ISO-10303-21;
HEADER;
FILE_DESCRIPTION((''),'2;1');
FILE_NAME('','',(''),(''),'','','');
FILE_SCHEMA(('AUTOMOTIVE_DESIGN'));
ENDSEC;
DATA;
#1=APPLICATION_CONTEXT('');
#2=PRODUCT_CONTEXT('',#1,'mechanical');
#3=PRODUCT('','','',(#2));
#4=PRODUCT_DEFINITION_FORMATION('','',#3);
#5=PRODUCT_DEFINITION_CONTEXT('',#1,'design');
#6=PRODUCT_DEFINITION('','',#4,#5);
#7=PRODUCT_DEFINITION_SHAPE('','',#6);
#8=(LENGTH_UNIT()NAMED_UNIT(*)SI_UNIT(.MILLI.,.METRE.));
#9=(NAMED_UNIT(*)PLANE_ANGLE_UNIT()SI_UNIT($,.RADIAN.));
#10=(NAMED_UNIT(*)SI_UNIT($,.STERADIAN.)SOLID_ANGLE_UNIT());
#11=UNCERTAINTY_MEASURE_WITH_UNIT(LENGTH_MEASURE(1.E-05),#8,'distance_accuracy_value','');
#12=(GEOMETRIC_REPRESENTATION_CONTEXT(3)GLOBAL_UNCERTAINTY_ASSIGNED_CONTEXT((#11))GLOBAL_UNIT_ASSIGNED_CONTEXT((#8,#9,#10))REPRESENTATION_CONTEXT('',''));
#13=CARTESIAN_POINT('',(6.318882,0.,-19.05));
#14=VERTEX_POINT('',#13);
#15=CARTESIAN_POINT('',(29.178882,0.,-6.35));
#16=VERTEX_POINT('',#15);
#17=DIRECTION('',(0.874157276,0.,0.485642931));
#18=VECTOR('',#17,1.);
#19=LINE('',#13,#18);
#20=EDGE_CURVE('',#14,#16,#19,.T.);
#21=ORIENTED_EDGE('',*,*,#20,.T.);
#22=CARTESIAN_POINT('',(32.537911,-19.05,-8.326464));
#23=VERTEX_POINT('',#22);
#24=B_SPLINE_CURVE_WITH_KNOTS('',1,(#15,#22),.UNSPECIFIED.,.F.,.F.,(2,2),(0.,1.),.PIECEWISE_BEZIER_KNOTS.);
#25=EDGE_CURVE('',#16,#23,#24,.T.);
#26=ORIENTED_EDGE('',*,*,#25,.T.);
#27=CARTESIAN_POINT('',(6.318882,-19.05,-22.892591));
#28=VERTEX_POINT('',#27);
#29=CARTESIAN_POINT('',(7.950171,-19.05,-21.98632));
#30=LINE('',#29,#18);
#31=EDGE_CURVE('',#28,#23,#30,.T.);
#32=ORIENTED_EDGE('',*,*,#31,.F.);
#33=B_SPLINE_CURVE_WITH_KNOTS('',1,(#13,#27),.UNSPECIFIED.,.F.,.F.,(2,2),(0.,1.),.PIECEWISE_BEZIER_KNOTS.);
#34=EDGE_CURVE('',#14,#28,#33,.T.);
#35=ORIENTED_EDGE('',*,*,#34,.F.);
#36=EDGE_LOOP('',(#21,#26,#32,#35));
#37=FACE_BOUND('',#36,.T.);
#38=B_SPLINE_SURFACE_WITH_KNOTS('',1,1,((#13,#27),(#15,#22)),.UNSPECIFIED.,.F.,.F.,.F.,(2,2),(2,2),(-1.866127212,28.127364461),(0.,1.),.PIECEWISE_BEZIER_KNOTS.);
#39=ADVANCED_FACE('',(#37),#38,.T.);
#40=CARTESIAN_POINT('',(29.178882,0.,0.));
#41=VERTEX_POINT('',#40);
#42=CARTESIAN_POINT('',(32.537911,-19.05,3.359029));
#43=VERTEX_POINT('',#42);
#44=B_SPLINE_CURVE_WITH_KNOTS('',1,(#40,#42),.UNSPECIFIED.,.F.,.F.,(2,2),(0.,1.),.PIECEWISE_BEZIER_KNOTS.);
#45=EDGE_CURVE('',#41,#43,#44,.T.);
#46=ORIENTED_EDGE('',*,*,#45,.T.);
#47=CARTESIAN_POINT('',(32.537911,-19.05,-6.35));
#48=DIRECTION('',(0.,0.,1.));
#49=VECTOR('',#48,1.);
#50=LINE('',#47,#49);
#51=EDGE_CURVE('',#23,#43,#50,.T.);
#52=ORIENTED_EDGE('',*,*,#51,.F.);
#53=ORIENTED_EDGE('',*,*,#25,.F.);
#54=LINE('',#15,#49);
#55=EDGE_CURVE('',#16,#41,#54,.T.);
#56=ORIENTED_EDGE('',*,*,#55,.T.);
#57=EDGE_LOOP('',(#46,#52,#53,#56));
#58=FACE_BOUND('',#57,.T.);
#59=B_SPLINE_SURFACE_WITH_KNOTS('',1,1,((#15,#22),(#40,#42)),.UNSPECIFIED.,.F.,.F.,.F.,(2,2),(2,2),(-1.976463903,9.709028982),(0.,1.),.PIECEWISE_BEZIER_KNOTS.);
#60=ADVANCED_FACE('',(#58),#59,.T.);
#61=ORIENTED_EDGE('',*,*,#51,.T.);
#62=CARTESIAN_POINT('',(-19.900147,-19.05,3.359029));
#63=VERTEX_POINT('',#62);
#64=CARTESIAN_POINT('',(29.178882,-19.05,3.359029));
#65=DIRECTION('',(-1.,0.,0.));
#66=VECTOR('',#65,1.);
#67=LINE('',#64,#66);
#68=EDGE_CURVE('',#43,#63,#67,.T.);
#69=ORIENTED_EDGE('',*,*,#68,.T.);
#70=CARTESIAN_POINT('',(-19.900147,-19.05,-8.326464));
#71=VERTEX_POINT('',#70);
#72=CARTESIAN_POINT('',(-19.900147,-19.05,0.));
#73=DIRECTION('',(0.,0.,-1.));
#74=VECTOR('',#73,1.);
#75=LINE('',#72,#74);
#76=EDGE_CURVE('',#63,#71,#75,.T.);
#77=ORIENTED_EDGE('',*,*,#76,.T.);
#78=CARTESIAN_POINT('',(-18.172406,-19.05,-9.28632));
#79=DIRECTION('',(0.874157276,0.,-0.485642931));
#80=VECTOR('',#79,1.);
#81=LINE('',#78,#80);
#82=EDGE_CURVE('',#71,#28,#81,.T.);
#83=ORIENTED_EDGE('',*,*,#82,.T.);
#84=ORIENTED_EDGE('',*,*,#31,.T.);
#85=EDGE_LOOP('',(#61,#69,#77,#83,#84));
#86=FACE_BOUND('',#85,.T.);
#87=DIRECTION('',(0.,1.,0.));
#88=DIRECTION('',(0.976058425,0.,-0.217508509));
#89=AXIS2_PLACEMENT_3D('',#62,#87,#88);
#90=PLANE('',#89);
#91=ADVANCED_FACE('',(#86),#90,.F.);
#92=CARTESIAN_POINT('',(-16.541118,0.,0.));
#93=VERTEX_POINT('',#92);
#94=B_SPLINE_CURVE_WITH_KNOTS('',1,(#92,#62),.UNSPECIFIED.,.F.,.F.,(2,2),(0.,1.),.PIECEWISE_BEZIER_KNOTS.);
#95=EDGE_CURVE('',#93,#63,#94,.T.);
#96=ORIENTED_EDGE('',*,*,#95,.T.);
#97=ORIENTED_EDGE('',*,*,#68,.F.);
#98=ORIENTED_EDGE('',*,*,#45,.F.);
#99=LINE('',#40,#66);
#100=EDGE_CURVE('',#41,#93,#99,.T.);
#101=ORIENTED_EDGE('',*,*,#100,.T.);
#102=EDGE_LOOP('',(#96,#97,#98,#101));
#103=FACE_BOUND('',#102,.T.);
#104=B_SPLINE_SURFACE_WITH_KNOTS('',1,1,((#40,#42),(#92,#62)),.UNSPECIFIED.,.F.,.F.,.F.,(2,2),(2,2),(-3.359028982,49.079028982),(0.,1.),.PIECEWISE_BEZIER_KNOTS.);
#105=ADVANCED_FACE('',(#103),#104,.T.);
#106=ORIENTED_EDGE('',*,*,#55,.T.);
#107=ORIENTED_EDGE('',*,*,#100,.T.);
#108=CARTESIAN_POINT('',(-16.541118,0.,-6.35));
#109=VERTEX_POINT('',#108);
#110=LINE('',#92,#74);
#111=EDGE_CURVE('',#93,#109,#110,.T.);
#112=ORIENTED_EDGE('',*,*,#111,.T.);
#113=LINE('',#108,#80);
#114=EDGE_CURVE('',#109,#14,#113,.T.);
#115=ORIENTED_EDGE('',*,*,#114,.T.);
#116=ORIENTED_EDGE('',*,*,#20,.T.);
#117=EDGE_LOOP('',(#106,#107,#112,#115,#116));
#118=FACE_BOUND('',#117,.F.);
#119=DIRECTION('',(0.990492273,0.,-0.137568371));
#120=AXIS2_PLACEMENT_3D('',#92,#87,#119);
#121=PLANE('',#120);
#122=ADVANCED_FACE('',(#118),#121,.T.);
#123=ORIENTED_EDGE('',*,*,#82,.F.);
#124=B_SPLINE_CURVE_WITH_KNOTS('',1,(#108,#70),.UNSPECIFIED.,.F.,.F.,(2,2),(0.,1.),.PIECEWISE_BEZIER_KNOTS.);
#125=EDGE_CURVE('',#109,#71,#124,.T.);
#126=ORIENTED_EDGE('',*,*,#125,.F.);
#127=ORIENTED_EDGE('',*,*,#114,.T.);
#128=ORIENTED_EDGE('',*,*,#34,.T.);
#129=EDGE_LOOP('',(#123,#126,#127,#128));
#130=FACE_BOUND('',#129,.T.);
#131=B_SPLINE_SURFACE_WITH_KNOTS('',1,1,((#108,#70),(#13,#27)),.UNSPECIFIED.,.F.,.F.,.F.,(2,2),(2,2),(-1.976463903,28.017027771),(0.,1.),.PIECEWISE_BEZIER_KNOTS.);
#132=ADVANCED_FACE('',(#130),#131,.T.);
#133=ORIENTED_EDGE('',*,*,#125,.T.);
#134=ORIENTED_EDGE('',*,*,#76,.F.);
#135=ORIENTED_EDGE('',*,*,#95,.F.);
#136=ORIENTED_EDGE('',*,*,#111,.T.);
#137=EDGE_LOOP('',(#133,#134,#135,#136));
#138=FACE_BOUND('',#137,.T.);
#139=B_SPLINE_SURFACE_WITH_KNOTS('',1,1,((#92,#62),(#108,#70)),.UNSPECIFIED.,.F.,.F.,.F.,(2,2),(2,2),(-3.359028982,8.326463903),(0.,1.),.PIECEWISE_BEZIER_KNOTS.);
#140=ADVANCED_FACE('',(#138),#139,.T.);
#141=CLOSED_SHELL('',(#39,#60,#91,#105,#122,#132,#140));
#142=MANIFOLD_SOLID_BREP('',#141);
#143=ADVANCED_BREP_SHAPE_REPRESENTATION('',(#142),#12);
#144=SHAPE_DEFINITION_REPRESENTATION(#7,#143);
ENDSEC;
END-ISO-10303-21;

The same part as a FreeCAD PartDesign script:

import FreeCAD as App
import Part
import Sketcher
Q = App.Units.Quantity

doc = App.newDocument("Part")
body = doc.addObject("PartDesign::Body", "Body")

sketch1 = body.newObject("Sketcher::SketchObject", "Sketch")
sketch1.AttachmentSupport = (doc.getObject("XZ_Plane"), [""])
sketch1.MapMode = "FlatFace"
sketch1.addGeometry(Part.LineSegment(App.Vector(-16.541118, 0, 0), App.Vector(-16.541118, -6.35, 0)), False)
sketch1.addGeometry(Part.LineSegment(App.Vector(-16.541118, -6.35, 0), App.Vector(6.318882, -19.05, 0)), False)
sketch1.addGeometry(Part.LineSegment(App.Vector(6.318882, -19.05, 0), App.Vector(29.178882, -6.35, 0)), False)
sketch1.addGeometry(Part.LineSegment(App.Vector(29.178882, -6.35, 0), App.Vector(29.178882, 0, 0)), False)
sketch1.addGeometry(Part.LineSegment(App.Vector(29.178882, 0, 0), App.Vector(-16.541118, 0, 0)), False)
sketch1.addConstraint(Sketcher.Constraint("Coincident", 0, 2, 1, 1))
sketch1.addConstraint(Sketcher.Constraint("Coincident", 1, 2, 2, 1))
sketch1.addConstraint(Sketcher.Constraint("Coincident", 2, 2, 3, 1))
sketch1.addConstraint(Sketcher.Constraint("Coincident", 3, 2, 4, 1))
sketch1.addConstraint(Sketcher.Constraint("Coincident", 4, 2, 0, 1))
sketch1.addConstraint(Sketcher.Constraint("Vertical", 0))
sketch1.addConstraint(Sketcher.Constraint("Vertical", 3))
sketch1.addConstraint(Sketcher.Constraint("Horizontal", 4))
sketch1.addConstraint(Sketcher.Constraint("PointOnObject", 3, 2, -1))
sketch1.addConstraint(Sketcher.Constraint("Horizontal", 0, 2, 2, 2))
sketch1.addConstraint(Sketcher.Constraint("Equal", 1, 2))
sketch1.addConstraint(Sketcher.Constraint("DistanceX", 4, 2, 4, 1, Q("1.8 in")))
sketch1.addConstraint(Sketcher.Constraint("DistanceY", 0, 2, 0, 1, Q("0.25 in")))
sketch1.addConstraint(Sketcher.Constraint("DistanceY", 1, 2, 0, 2, Q("0.5 in")))
sketch1.addConstraint(Sketcher.Constraint("DistanceX", 0, 2, -1, 1, Q("16.541118 mm")))
pad1 = body.newObject("PartDesign::Pad", "Pad")
pad1.Profile = sketch1
pad1.Length = Q("0.75 in")
pad1.TaperAngle = 10

doc.recompute()
